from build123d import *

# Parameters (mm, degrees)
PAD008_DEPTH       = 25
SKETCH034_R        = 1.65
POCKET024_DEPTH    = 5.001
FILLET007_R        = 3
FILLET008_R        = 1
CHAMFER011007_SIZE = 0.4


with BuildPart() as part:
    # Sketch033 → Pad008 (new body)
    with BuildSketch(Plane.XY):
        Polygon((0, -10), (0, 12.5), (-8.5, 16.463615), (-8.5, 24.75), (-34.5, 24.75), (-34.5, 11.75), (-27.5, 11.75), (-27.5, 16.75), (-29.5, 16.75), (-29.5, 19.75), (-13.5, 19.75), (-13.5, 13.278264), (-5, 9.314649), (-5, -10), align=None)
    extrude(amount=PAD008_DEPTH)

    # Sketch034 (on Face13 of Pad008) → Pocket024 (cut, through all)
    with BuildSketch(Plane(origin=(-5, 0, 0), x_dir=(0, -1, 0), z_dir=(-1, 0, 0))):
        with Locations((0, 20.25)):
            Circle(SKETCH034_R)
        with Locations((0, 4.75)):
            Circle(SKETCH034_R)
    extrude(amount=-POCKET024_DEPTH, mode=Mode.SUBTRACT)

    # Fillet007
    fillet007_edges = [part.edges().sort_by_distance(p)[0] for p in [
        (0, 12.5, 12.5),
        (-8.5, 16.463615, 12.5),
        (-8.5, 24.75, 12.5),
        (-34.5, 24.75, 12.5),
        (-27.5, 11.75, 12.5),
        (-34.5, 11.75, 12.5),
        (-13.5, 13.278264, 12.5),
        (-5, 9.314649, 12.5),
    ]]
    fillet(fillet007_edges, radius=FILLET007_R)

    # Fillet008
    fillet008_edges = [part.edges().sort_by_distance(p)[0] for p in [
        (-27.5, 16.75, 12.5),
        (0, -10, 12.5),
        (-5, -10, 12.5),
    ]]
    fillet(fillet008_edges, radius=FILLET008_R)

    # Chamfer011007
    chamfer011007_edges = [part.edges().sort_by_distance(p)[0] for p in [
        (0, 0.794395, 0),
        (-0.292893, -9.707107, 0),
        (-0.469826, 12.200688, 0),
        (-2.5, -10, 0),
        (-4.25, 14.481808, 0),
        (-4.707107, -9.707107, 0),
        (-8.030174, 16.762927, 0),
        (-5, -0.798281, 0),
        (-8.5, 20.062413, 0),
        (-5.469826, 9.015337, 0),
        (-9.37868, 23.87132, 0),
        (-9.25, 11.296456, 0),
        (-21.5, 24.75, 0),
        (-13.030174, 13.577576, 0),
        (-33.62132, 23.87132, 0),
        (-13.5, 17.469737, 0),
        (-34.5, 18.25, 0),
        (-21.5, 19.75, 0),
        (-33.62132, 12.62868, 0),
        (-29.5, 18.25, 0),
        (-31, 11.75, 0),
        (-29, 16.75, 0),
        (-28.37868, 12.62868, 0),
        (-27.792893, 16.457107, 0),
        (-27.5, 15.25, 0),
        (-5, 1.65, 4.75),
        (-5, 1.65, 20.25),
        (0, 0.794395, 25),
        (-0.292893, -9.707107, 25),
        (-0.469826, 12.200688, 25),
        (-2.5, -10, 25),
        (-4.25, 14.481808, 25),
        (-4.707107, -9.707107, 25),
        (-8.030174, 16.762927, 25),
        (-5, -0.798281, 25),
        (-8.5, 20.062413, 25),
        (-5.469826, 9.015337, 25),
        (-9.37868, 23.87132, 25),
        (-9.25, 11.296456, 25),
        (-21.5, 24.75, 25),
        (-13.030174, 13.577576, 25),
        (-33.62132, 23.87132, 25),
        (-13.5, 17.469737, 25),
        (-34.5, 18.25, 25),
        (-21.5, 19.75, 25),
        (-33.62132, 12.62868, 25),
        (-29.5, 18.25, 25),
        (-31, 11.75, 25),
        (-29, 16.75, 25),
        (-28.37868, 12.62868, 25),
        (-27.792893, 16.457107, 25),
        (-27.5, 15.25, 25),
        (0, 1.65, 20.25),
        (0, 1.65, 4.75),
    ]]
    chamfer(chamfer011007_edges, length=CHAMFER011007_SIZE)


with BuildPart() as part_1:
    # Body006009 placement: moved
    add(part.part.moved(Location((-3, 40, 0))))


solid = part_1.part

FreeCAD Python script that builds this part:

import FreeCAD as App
import Part
import Sketcher
Q = App.Units.Quantity


def edges_at(feature, points):
    """Names of the edges that pass closest to the given points."""
    edges = feature.Shape.Edges
    near = lambda p: min(range(len(edges)), key=lambda i: edges[i].distToShape(Part.Vertex(*p))[0])
    return sorted({f"Edge{near(p) + 1}" for p in points})

doc = App.newDocument("Part")
body = doc.addObject("PartDesign::Body", "Body")

# Sketch on XY plane
sketch1 = body.newObject("Sketcher::SketchObject", "Sketch")
sketch1.AttachmentSupport = (doc.getObject("XY_Plane"), [""])
sketch1.MapMode = "FlatFace"
sketch1.addGeometry([
    Part.LineSegment(App.Vector(0, -10, 0), App.Vector(0, 12.5, 0)),  # 0
    Part.LineSegment(App.Vector(0, 12.5, 0), App.Vector(-8.5, 16.5, 0)),  # 1
    Part.LineSegment(App.Vector(-8.5, 16.5, 0), App.Vector(-8.5, 24.8, 0)),  # 2
    Part.LineSegment(App.Vector(-8.5, 24.8, 0), App.Vector(-34.5, 24.8, 0)),  # 3
    Part.LineSegment(App.Vector(-34.5, 24.8, 0), App.Vector(-34.5, 11.8, 0)),  # 4
    Part.LineSegment(App.Vector(-34.5, 11.8, 0), App.Vector(-27.5, 11.8, 0)),  # 5
    Part.LineSegment(App.Vector(-27.5, 11.8, 0), App.Vector(-27.5, 16.8, 0)),  # 6
    Part.LineSegment(App.Vector(-27.5, 16.8, 0), App.Vector(-29.5, 16.8, 0)),  # 7
    Part.LineSegment(App.Vector(-29.5, 16.8, 0), App.Vector(-29.5, 19.8, 0)),  # 8
    Part.LineSegment(App.Vector(-29.5, 19.8, 0), App.Vector(-13.5, 19.8, 0)),  # 9
    Part.LineSegment(App.Vector(-13.5, 19.8, 0), App.Vector(-13.5, 13.3, 0)),  # 10
    Part.LineSegment(App.Vector(-13.5, 13.3, 0), App.Vector(-5, 9.3, 0)),  # 11
    Part.LineSegment(App.Vector(-5, 9.3, 0), App.Vector(-5, -10, 0)),  # 12
    Part.LineSegment(App.Vector(-5, -10, 0), App.Vector(0, -10, 0)),  # 13
], False)
sketch1.addConstraint([
    Sketcher.Constraint("Coincident", 0, 2, 1, 1),
    Sketcher.Constraint("Coincident", 1, 2, 2, 1),
    Sketcher.Constraint("Coincident", 2, 2, 3, 1),
    Sketcher.Constraint("Coincident", 3, 2, 4, 1),
    Sketcher.Constraint("Coincident", 4, 2, 5, 1),
    Sketcher.Constraint("Coincident", 5, 2, 6, 1),
    Sketcher.Constraint("Coincident", 6, 2, 7, 1),
    Sketcher.Constraint("Coincident", 7, 2, 8, 1),
    Sketcher.Constraint("Coincident", 8, 2, 9, 1),
    Sketcher.Constraint("Coincident", 9, 2, 10, 1),
    Sketcher.Constraint("Coincident", 10, 2, 11, 1),
    Sketcher.Constraint("Coincident", 11, 2, 12, 1),
    Sketcher.Constraint("Coincident", 12, 2, 13, 1),
    Sketcher.Constraint("Coincident", 13, 2, 0, 1),
    Sketcher.Constraint("Vertical", 0),
    Sketcher.Constraint("Vertical", 2),
    Sketcher.Constraint("Horizontal", 3),
    Sketcher.Constraint("Vertical", 4),
    Sketcher.Constraint("Horizontal", 5),
    Sketcher.Constraint("Vertical", 6),
    Sketcher.Constraint("Horizontal", 7),
    Sketcher.Constraint("Vertical", 8),
    Sketcher.Constraint("Horizontal", 9),
    Sketcher.Constraint("Vertical", 10),
    Sketcher.Constraint("Vertical", 12),
    Sketcher.Constraint("Horizontal", 13),
    Sketcher.Constraint("PointOnObject", 0, 2, -2),
    Sketcher.Constraint("Parallel", 1, 11),
    Sketcher.Constraint("Equal", 13, 6),
    Sketcher.Constraint("Equal", 1, 11),
    Sketcher.Constraint("DistanceX", 3, 2, 3, 1, 26.0),
    Sketcher.Constraint("DistanceX", 5, 1, 5, 2, 7.0),
    Sketcher.Constraint("DistanceX", 7, 2, 7, 1, 2.0),
    Sketcher.Constraint("DistanceX", 9, 1, 9, 2, 16.0),
    Sketcher.Constraint("DistanceY", 4, 2, 4, 1, 13.0),
    Sketcher.Constraint("DistanceY", 8, 1, 8, 2, 3.0),
    Sketcher.Constraint("Angle", 1, Q("155.000001 deg")),
    Sketcher.Constraint("DistanceY", 0, 1, 0, 2, 22.5),
    Sketcher.Constraint("DistanceY", 12, 2, -1, 1, 10.0),
    Sketcher.Constraint("DistanceX", 1, 2, -1, 1, 8.5),
    Sketcher.Constraint("DistanceY", -1, 1, 2, 2, 24.75),
    Sketcher.Constraint("DistanceY", 12, 2, 12, 1, 19.314649),
])
pad1 = body.newObject("PartDesign::Pad", "Pad")
pad1.Profile = sketch1
pad1.Length = 25

# Sketch on YZ plane
sketch2 = body.newObject("Sketcher::SketchObject", "Sketch001")
sketch2.AttachmentSupport = (doc.getObject("YZ_Plane"), [""])
sketch2.MapMode = "FlatFace"
sketch2.AttachmentOffset = App.Placement(App.Vector(0, 0, -5), App.Rotation())
sketch2.addGeometry([
    Part.Circle(App.Vector(0, 20.2, 0), App.Vector(0, 0, 1), 1.6),
    Part.Circle(App.Vector(0, 4.8, 0), App.Vector(0, 0, 1), 1.6),
], False)
sketch2.addConstraint([
    Sketcher.Constraint("Equal", 0, 1),
    Sketcher.Constraint("PointOnObject", 0, 3, -2),
    Sketcher.Constraint("PointOnObject", 1, 3, -2),
    Sketcher.Constraint("Diameter", 0, 3.3),
    Sketcher.Constraint("DistanceY", 1, 3, 0, 3, 15.5),
    Sketcher.Constraint("DistanceY", -1, 1, 0, 3, 20.25),
])
pocket1 = body.newObject("PartDesign::Pocket", "Pocket")
pocket1.Profile = sketch2
pocket1.Type = "ThroughAll"
pocket1.Reversed = True
doc.recompute()

fillet = body.newObject("PartDesign::Fillet", "Fillet")
fillet.Base = (pocket1, edges_at(pocket1, [
    (0, 12.5, 12.5),
    (-8.5, 16.464, 12.5),
    (-8.5, 24.75, 12.5),
    (-34.5, 24.75, 12.5),
    (-27.5, 11.75, 12.5),
    (-34.5, 11.75, 12.5),
    (-13.5, 13.278, 12.5),
    (-5, 9.315, 12.5),
]))
fillet.Radius = 3
doc.recompute()

fillet2 = body.newObject("PartDesign::Fillet", "Fillet001")
fillet2.Base = (fillet, edges_at(fillet, [(-27.5, 16.75, 12.5), (0, -10, 12.5), (-5, -10, 12.5)]))
fillet2.Radius = 1
doc.recompute()

chamfer = body.newObject("PartDesign::Chamfer", "Chamfer")
chamfer.Base = (fillet2, edges_at(fillet2, [
    (0, 0.794, 0),
    (-0.293, -9.707, 0),
    (-0.47, 12.201, 0),
    (-2.5, -10, 0),
    (-4.25, 14.482, 0),
    (-4.707, -9.707, 0),
    (-8.03, 16.763, 0),
    (-5, -0.798, 0),
    (-8.5, 20.062, 0),
    (-5.47, 9.015, 0),
    (-9.379, 23.871, 0),
    (-9.25, 11.296, 0),
    (-21.5, 24.75, 0),
    (-13.03, 13.578, 0),
    (-33.621, 23.871, 0),
    (-13.5, 17.47, 0),
    (-34.5, 18.25, 0),
    (-21.5, 19.75, 0),
    (-33.621, 12.629, 0),
    (-29.5, 18.25, 0),
    (-31, 11.75, 0),
    (-29, 16.75, 0),
    (-28.379, 12.629, 0),
    (-27.793, 16.457, 0),
    (-27.5, 15.25, 0),
    (-5, 1.65, 4.75),
    (-5, 1.65, 20.25),
    (0, 0.794, 25),
    (-0.293, -9.707, 25),
    (-0.47, 12.201, 25),
    (-2.5, -10, 25),
    (-4.25, 14.482, 25),
    (-4.707, -9.707, 25),
    (-8.03, 16.763, 25),
    (-5, -0.798, 25),
    (-8.5, 20.062, 25),
    (-5.47, 9.015, 25),
    (-9.379, 23.871, 25),
    (-9.25, 11.296, 25),
    (-21.5, 24.75, 25),
    (-13.03, 13.578, 25),
    (-33.621, 23.871, 25),
    (-13.5, 17.47, 25),
    (-34.5, 18.25, 25),
    (-21.5, 19.75, 25),
    (-33.621, 12.629, 25),
    (-29.5, 18.25, 25),
    (-31, 11.75, 25),
    (-29, 16.75, 25),
    (-28.379, 12.629, 25),
    (-27.793, 16.457, 25),
    (-27.5, 15.25, 25),
    (0, 1.65, 20.25),
    (0, 1.65, 4.75),
]))
chamfer.Size = 0.4
body2 = doc.addObject("PartDesign::Body", "Body001")
doc.recompute()

body.Placement = App.Placement(App.Vector(-3, 40, 0), App.Rotation(App.Vector(0, 0, 1), 0))
boolean = body2.newObject("PartDesign::Boolean", "Boolean")
boolean.Type = "Fuse"
boolean.addObjects([body])

doc.recompute()
